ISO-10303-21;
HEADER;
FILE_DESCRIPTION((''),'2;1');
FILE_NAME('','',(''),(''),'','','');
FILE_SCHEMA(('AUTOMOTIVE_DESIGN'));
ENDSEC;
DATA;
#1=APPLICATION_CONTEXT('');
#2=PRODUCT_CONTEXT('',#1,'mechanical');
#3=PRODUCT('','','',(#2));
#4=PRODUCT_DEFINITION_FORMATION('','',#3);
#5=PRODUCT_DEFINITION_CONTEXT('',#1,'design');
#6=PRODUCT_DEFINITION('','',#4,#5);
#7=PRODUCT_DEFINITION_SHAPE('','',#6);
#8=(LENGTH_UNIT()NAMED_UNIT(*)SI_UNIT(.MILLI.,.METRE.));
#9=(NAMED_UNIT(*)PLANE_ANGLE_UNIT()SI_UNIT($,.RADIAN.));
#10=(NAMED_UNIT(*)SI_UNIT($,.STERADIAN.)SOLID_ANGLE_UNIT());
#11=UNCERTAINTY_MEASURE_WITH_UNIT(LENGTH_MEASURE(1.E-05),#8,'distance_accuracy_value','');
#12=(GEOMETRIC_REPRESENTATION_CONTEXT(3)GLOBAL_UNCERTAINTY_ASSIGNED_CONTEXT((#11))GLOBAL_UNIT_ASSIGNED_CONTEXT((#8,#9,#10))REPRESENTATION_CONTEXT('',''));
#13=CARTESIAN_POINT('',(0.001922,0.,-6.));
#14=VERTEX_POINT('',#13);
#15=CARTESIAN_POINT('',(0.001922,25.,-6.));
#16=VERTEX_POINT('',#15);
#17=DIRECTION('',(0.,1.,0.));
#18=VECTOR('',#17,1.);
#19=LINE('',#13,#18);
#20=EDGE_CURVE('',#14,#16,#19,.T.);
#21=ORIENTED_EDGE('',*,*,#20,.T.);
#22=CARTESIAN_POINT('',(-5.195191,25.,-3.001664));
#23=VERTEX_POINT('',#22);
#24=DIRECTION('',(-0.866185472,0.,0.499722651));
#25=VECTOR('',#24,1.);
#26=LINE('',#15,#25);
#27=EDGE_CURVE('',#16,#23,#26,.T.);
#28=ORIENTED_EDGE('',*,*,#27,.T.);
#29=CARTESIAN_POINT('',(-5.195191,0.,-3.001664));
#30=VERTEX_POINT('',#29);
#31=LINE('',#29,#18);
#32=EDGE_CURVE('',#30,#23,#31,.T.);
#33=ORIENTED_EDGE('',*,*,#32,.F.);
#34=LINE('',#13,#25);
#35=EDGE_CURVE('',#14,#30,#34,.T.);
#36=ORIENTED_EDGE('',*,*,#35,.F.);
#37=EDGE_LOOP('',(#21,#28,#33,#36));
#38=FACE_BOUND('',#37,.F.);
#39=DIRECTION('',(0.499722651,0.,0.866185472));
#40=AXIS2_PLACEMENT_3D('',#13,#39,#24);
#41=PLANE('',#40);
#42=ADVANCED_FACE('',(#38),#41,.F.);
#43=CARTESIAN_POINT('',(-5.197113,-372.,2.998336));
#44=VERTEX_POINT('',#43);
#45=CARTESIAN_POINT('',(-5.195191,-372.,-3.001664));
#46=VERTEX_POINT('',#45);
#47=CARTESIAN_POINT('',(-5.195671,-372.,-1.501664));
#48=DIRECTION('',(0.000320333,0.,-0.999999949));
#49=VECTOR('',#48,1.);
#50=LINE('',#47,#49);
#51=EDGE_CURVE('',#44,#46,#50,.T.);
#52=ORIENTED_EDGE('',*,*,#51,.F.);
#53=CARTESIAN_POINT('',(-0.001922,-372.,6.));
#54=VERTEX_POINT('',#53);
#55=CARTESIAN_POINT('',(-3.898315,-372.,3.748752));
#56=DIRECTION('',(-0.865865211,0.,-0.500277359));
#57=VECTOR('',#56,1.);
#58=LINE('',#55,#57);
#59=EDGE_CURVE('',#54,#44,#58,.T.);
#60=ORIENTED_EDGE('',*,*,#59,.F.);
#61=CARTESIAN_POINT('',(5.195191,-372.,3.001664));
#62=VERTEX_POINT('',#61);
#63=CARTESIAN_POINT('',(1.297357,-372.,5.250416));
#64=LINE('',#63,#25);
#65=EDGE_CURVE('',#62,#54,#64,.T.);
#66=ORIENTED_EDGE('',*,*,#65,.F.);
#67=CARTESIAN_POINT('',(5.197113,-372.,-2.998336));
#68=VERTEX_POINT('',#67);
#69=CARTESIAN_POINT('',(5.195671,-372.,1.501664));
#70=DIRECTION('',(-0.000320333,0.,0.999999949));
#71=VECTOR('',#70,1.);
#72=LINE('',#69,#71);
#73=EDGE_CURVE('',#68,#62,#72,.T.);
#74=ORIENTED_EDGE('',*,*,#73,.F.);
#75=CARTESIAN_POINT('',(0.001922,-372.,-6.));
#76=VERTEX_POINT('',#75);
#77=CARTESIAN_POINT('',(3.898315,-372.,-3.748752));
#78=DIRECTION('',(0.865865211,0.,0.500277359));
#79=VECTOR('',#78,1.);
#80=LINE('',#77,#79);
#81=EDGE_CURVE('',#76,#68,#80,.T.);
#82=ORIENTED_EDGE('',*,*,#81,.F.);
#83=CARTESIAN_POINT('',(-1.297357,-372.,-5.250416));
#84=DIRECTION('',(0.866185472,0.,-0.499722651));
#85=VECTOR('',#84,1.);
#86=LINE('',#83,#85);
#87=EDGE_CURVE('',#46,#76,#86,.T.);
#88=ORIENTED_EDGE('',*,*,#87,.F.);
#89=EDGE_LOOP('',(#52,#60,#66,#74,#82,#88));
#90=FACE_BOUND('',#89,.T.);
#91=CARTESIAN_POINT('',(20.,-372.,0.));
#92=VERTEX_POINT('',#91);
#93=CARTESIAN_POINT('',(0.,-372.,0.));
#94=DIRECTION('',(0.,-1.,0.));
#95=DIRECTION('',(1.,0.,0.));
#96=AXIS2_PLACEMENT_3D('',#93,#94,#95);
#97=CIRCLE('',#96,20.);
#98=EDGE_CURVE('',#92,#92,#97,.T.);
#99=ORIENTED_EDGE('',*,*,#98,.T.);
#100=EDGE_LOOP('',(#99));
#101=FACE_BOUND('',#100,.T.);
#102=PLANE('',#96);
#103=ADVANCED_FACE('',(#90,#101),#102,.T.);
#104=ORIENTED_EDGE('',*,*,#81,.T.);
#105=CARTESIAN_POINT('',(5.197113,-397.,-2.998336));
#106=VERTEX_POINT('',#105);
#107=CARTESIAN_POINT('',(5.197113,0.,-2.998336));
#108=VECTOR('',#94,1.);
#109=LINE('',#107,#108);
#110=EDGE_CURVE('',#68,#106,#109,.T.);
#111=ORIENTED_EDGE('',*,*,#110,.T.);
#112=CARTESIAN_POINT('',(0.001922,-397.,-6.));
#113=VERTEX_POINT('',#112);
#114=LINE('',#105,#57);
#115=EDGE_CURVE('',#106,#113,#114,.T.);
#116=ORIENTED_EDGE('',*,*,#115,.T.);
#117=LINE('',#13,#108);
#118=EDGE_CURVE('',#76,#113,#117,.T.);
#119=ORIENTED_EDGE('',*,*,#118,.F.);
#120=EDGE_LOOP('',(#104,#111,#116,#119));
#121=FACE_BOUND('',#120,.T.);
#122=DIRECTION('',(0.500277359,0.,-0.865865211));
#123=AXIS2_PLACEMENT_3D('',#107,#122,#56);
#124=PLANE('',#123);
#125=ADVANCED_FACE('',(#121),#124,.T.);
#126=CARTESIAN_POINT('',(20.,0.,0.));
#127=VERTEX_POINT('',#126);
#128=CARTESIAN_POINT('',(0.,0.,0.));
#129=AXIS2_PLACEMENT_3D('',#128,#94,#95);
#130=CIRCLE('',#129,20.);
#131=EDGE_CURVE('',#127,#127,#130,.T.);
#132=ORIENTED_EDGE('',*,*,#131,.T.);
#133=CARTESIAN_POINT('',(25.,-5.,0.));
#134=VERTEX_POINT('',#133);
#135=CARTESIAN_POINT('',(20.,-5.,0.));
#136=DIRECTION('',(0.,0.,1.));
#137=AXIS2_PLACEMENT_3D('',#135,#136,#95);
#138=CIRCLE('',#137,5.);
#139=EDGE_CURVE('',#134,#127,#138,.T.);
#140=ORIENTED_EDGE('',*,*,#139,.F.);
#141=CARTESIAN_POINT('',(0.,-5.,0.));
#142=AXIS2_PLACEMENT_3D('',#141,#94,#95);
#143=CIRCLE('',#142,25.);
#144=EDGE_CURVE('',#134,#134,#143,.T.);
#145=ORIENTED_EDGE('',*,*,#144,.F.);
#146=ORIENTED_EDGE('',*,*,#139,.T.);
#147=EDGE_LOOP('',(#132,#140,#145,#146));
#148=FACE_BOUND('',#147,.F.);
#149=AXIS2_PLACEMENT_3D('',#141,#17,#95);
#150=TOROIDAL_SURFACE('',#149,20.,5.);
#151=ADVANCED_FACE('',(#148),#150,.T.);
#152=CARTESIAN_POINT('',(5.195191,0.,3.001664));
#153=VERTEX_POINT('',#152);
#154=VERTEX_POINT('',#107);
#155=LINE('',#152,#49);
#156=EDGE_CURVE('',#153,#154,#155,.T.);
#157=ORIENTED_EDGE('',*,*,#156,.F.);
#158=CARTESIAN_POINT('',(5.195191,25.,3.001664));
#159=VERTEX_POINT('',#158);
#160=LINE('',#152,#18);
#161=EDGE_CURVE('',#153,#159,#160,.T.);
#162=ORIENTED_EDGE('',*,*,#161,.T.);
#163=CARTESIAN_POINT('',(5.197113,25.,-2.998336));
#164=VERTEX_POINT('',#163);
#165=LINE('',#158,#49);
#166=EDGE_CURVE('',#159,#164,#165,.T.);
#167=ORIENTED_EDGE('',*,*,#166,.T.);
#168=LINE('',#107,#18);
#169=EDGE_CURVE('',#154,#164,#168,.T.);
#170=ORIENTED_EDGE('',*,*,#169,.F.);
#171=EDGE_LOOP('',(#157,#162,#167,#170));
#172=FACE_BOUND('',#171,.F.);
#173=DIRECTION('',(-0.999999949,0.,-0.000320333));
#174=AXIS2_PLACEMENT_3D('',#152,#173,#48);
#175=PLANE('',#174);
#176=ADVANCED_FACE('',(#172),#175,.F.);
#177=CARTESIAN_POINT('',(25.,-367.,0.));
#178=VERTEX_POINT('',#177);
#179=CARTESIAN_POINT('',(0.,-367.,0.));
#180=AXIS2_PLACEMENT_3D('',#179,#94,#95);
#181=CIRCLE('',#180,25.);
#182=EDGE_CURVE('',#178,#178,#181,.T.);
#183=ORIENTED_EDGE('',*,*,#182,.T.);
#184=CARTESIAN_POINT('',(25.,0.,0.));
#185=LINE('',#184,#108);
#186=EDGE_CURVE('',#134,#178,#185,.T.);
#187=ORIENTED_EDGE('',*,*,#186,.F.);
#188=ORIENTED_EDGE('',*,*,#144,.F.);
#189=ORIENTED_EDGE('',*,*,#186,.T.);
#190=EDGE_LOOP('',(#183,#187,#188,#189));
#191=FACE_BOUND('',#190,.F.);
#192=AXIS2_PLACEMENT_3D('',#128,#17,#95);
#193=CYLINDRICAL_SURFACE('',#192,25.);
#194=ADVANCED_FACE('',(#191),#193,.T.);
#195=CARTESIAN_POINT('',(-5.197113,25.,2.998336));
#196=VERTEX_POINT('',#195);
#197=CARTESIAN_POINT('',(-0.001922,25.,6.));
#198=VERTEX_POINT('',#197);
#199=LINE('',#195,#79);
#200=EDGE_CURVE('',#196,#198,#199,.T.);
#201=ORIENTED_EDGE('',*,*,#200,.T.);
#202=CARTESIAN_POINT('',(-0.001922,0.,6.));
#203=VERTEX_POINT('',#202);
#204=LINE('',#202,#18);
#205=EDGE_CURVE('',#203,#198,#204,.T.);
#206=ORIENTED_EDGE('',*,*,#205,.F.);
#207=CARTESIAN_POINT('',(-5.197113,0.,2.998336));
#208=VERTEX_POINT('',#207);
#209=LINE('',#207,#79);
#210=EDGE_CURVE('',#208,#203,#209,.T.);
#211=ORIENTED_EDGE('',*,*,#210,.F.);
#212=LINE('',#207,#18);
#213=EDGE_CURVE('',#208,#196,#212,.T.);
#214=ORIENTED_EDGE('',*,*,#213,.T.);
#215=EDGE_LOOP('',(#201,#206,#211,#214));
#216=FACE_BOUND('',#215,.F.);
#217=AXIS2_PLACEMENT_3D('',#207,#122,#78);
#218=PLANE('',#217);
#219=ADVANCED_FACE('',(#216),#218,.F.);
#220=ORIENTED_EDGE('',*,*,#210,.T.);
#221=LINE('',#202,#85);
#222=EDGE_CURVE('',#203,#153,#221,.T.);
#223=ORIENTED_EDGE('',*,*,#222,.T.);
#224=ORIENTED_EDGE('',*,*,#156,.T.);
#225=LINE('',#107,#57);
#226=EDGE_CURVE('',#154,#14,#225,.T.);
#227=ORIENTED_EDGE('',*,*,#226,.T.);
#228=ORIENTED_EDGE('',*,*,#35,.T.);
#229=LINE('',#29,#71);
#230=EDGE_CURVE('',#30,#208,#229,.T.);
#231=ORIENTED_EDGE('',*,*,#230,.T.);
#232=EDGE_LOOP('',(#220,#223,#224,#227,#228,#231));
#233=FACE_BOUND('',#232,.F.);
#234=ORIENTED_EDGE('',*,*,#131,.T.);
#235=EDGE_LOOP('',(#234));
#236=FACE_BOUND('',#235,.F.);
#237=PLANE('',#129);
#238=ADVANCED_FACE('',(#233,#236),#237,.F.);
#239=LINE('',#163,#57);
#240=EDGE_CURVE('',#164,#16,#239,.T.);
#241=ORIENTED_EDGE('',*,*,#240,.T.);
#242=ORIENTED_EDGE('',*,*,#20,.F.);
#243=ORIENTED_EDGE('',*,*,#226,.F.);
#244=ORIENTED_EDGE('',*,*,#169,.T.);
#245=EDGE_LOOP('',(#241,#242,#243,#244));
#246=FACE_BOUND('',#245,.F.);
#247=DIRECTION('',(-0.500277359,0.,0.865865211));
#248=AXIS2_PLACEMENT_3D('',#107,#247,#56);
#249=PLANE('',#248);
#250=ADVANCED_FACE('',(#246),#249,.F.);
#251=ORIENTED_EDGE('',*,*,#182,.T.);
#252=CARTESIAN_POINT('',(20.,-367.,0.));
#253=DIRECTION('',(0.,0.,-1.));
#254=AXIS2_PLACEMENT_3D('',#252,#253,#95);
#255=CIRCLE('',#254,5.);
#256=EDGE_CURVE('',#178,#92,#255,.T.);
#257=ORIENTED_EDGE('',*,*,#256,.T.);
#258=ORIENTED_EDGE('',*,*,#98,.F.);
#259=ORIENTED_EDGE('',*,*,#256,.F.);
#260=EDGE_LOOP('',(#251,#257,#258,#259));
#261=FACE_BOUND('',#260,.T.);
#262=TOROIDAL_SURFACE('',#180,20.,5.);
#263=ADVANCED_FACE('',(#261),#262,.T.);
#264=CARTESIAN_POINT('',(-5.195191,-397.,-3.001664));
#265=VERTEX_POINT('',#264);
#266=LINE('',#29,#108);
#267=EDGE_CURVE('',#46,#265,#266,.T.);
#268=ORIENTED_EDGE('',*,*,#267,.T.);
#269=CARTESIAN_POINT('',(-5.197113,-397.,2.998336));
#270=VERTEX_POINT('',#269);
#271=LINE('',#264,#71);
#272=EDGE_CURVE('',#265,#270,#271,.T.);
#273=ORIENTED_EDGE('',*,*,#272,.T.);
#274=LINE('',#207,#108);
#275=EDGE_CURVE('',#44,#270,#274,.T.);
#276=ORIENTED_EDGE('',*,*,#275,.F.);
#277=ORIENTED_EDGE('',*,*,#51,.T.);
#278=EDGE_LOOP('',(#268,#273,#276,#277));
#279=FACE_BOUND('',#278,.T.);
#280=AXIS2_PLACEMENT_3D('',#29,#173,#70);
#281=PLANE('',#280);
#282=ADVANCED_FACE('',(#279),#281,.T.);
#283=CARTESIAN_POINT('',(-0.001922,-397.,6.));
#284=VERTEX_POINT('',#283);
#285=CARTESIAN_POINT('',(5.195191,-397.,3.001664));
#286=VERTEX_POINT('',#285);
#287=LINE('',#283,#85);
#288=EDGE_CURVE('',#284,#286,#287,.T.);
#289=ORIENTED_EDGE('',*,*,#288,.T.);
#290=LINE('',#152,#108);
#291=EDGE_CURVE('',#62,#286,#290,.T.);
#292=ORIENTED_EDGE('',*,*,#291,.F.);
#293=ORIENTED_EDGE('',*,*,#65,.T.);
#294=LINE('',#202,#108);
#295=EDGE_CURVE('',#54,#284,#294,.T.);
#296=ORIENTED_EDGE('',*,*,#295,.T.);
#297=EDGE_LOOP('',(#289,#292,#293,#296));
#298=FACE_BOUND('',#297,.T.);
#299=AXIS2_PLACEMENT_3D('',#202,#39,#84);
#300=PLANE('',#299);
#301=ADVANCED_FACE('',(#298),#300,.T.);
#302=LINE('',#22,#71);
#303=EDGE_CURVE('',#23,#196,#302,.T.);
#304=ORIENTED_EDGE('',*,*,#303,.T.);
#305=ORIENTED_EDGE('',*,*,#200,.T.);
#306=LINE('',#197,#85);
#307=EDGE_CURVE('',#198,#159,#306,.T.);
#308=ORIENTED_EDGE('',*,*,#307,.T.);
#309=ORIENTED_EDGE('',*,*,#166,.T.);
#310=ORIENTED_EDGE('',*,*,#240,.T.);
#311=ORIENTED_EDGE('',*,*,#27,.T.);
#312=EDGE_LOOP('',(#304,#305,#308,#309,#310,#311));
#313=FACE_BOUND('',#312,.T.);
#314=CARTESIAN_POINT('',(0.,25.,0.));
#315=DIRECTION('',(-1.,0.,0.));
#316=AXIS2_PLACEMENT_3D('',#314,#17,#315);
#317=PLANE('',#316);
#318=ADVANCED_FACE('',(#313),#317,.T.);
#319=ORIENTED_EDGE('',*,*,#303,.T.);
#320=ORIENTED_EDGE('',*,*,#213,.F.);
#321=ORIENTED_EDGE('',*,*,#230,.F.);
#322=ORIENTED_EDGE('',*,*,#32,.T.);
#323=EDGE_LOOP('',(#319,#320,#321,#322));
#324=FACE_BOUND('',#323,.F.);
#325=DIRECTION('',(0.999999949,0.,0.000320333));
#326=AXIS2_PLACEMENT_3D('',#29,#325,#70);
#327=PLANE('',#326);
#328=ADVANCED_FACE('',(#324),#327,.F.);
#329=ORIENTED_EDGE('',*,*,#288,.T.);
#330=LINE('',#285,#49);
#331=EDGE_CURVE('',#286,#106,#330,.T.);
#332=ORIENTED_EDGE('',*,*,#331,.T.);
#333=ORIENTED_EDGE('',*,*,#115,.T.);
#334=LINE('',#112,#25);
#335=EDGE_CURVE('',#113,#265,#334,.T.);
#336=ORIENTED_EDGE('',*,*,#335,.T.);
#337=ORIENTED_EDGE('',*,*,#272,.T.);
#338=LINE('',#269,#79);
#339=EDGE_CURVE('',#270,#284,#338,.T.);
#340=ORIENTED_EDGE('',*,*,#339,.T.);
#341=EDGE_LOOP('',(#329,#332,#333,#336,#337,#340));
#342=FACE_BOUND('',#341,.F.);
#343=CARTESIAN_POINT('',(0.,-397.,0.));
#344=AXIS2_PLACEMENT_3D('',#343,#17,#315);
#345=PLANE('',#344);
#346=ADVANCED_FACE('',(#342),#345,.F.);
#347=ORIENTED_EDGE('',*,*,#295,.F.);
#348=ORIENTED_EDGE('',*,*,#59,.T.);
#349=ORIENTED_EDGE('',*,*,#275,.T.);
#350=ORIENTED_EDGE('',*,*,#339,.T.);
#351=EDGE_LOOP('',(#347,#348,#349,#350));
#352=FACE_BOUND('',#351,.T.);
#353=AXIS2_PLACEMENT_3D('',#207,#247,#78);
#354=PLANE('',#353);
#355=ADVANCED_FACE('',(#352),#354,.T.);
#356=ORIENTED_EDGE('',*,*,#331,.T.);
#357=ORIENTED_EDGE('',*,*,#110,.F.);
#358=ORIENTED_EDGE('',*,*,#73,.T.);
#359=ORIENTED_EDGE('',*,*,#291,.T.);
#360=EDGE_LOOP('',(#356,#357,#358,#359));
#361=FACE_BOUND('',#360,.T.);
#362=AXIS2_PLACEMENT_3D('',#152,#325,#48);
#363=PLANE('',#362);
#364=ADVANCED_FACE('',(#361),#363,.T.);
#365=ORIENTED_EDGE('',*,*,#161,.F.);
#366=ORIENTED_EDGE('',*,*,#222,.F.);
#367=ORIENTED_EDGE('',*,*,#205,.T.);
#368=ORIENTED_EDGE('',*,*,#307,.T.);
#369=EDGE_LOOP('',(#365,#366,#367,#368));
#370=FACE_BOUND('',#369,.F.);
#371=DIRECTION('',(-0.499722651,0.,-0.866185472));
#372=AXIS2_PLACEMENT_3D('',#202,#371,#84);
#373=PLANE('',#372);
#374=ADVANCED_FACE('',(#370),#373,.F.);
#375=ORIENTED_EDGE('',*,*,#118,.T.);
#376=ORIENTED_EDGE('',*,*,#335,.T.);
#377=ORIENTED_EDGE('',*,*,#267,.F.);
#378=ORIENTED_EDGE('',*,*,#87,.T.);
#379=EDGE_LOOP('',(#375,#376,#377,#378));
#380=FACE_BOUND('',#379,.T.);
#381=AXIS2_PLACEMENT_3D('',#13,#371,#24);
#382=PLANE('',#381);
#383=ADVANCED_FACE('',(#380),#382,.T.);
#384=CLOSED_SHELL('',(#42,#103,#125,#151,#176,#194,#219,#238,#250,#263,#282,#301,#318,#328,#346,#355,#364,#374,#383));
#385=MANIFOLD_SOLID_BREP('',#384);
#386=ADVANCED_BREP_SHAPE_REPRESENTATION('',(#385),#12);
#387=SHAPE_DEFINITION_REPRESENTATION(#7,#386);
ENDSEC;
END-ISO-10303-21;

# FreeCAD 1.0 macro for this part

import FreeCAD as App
import Part
import Sketcher
from FreeCAD import Vector


def edges_at(feature, points):
    """Names of the edges that pass closest to the given points."""
    edges = feature.Shape.Edges
    near = lambda p: min(range(len(edges)), key=lambda i: edges[i].distToShape(Part.Vertex(*p))[0])
    return sorted({f"Edge{near(p) + 1}" for p in points})

doc = App.newDocument("Part")
body = doc.addObject("PartDesign::Body", "Body")

sketch1 = body.newObject("Sketcher::SketchObject", "Sketch")
sketch1.AttachmentSupport = (doc.getObject("XZ_Plane"), [""])
sketch1.MapMode = "FlatFace"
sketch1.addGeometry(Part.Circle(Vector(0, 0, 0), Vector(0, 0, 1), 25), False)
sketch1.addConstraint([
    Sketcher.Constraint("Coincident", 0, 3, -1, 1),
    Sketcher.Constraint("Diameter", 0, 50.0),
])
pad1 = body.newObject("PartDesign::Pad", "Pad")
pad1.Profile = sketch1
pad1.Length = 372
doc.recompute()

fillet = body.newObject("PartDesign::Fillet", "Fillet")
fillet.Base = (pad1, edges_at(pad1, [(-25, -372, 0), (-25, 0, 0)]))
fillet.Radius = 5

sketch2 = body.newObject("Sketcher::SketchObject", "Sketch001")
sketch2.AttachmentSupport = (doc.getObject("XZ_Plane"), [""])
sketch2.MapMode = "FlatFace"
sketch2.addGeometry([
    Part.LineSegment(Vector(0, -6, 0), Vector(-5, -3, 0)),
    Part.LineSegment(Vector(-5, -3, 0), Vector(-5, 3, 0)),
    Part.LineSegment(Vector(-5, 3, 0), Vector(0, 6, 0)),
    Part.LineSegment(Vector(0, 6, 0), Vector(5, 3, 0)),
    Part.LineSegment(Vector(5, 3, 0), Vector(5, -3, 0)),
    Part.LineSegment(Vector(5, -3, 0), Vector(0, -6, 0)),
], False)
sketch2.addConstraint([
    Sketcher.Constraint("Coincident", 0, 2, 1, 1),
    Sketcher.Constraint("Coincident", 1, 2, 2, 1),
    Sketcher.Constraint("Coincident", 2, 2, 3, 1),
    Sketcher.Constraint("Coincident", 3, 2, 4, 1),
    Sketcher.Constraint("Coincident", 4, 2, 5, 1),
    Sketcher.Constraint("Coincident", 5, 2, 0, 1),
    Sketcher.Constraint("Symmetric", 0, 2, 3, 2, -1, 1),
    Sketcher.Constraint("Symmetric", 1, 2, 4, 2, -1, 1),
    Sketcher.Constraint("Symmetric", 2, 2, 5, 2, -1, 1),
    Sketcher.Constraint("Equal", 0, 1),
    Sketcher.Constraint("Equal", 1, 2),
    Sketcher.Constraint("Distance", 0, 6.0),
    Sketcher.Constraint("DistanceY", -1, 1, 2, 2, 6.0),
    Sketcher.Constraint("DistanceX", 0, 2, -1, 1, 5.195191),
    Sketcher.Constraint("DistanceX", 1, 2, 2, 2, 5.195191),
])
pad2 = body.newObject("PartDesign::Pad", "Pad001")
pad2.Profile = sketch2
pad2.Type = "TwoLengths"
pad2.Length = 25
pad2.Length2 = 397
pad2.Reversed = True

doc.recompute()
